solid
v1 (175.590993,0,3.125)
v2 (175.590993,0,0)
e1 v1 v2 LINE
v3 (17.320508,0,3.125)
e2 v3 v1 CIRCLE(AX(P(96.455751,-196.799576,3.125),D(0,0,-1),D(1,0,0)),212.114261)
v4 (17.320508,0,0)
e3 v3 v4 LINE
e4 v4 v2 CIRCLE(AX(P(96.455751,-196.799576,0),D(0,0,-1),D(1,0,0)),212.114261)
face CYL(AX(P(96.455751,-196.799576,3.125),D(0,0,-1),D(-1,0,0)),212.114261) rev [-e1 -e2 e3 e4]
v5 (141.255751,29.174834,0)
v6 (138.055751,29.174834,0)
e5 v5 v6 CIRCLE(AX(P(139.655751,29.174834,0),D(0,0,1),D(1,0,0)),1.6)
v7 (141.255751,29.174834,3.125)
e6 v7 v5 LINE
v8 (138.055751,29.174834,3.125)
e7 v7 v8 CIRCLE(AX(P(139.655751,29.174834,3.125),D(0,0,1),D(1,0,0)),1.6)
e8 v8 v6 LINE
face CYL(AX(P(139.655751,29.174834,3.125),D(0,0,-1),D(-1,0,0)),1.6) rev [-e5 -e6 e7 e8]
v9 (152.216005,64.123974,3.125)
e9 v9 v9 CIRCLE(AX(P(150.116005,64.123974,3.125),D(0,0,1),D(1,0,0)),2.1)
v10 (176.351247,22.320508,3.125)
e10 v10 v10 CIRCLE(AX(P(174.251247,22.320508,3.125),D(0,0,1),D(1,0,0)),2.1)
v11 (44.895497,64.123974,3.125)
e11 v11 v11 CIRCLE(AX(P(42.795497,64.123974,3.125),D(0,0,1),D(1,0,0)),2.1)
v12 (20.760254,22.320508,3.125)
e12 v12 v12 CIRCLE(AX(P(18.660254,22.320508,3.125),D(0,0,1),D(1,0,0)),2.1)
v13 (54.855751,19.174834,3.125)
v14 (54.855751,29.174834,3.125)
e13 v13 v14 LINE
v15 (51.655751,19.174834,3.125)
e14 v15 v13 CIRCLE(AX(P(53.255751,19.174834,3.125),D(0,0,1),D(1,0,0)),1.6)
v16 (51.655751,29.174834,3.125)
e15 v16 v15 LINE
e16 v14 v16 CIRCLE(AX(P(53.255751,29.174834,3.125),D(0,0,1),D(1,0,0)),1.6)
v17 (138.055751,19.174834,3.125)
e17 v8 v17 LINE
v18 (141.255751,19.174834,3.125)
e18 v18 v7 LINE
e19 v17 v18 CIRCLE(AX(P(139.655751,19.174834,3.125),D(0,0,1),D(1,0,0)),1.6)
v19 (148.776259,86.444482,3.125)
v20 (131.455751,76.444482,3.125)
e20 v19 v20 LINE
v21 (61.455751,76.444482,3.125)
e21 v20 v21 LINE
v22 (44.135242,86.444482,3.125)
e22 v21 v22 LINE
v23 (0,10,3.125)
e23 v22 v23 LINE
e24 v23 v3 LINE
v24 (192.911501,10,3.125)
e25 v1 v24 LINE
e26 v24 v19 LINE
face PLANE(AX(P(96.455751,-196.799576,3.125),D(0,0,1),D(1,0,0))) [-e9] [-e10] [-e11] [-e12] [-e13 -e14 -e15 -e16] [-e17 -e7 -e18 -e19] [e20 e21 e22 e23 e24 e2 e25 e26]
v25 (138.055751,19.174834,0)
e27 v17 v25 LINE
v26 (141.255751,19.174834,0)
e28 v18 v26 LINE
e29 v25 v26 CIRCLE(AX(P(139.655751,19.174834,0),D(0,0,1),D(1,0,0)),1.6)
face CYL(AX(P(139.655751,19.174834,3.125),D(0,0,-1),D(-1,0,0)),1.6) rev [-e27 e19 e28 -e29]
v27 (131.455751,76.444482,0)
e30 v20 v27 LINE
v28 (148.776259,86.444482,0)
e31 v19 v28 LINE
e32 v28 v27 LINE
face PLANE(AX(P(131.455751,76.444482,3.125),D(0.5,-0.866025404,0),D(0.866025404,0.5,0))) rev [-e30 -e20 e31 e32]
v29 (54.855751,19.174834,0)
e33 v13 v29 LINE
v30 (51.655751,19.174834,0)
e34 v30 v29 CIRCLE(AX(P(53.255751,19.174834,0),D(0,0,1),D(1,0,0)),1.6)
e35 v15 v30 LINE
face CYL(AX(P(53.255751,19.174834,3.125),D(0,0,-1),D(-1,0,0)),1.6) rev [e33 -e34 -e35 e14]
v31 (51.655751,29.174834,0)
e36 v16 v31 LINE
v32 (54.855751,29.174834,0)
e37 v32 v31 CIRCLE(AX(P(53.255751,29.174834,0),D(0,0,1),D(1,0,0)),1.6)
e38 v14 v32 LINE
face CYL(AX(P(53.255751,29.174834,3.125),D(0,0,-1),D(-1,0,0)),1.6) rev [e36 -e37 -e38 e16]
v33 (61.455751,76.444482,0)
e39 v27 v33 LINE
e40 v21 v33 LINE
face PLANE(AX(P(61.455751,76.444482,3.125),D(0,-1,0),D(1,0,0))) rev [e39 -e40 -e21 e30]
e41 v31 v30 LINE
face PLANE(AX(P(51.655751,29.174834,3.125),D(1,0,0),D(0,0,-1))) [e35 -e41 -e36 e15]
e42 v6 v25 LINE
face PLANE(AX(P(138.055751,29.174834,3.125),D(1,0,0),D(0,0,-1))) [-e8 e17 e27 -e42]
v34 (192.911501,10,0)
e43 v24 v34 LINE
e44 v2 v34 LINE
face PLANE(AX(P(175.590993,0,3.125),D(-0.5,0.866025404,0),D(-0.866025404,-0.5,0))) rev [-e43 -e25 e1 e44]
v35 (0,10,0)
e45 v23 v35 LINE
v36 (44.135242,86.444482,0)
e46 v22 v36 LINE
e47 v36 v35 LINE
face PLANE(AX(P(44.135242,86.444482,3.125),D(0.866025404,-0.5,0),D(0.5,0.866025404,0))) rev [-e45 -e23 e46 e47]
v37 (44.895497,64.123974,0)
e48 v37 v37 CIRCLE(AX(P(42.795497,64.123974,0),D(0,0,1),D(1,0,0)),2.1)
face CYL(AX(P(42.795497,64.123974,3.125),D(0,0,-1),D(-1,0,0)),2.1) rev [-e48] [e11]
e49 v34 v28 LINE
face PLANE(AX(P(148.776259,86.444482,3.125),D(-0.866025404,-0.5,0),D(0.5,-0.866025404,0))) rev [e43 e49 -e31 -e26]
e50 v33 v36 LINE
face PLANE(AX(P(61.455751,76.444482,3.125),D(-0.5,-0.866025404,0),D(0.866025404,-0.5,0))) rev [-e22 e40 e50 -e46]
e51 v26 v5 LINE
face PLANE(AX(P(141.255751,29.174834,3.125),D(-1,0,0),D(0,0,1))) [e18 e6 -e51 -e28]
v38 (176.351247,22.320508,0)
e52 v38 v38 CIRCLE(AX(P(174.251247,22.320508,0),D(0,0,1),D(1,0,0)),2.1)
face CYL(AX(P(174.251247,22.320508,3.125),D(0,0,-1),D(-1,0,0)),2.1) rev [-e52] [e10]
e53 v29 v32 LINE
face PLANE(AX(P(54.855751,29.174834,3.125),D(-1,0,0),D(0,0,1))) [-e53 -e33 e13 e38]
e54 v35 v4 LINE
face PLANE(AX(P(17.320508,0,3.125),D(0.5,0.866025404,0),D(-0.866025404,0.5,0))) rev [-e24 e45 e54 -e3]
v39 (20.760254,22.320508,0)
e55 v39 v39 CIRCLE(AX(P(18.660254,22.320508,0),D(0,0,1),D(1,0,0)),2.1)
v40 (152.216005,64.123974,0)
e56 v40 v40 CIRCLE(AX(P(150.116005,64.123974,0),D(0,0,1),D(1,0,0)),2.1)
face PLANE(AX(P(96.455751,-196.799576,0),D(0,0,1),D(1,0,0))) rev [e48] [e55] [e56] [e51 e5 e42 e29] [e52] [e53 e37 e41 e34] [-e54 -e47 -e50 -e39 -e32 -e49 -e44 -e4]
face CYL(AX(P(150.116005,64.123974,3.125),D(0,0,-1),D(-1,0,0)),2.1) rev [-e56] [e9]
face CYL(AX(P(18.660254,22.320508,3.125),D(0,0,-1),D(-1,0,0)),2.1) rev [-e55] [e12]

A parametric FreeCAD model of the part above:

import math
import FreeCAD as App
import Part
import Sketcher
from FreeCAD import Vector
Q = App.Units.Quantity

doc = App.newDocument("Part")
body = doc.addObject("PartDesign::Body", "Body")

# Sketch on XY plane
sketch1 = body.newObject("Sketcher::SketchObject", "Sketch")
sketch1.AttachmentSupport = (doc.getObject("XY_Plane"), [""])
sketch1.MapMode = "FlatFace"
sketch1.addGeometry(Part.LineSegment(Vector(175.6, 0, 0), Vector(192.9, 10, 0)), False)
sketch1.addGeometry(Part.LineSegment(Vector(192.9, 10, 0), Vector(148.8, 86.4, 0)), False)
sketch1.addGeometry(Part.LineSegment(Vector(148.8, 86.4, 0), Vector(131.5, 76.4, 0)), False)
sketch1.addGeometry(Part.LineSegment(Vector(131.5, 76.4, 0), Vector(61.5, 76.4, 0)), False)
sketch1.addGeometry(Part.LineSegment(Vector(61.5, 76.4, 0), Vector(44.1, 86.4, 0)), False)
sketch1.addGeometry(Part.LineSegment(Vector(44.1, 86.4, 0), Vector(0, 10, 0)), False)
sketch1.addGeometry(Part.LineSegment(Vector(0, 10, 0), Vector(17.3, 0, 0)), False)
sketch1.addGeometry(Part.ArcOfCircle(Part.Circle(Vector(96.5, -196.8, 0), Vector(0, 0, 1), 212.1), math.radians(68), math.radians(112)), False)
sketch1.addGeometry(Part.Circle(Vector(18.7, 22.3, 0), Vector(0, 0, 1), 2.1), False)
sketch1.addGeometry(Part.ArcOfCircle(Part.Circle(Vector(53.3, 29.2, 0), Vector(0, 0, 1), 1.6), math.radians(0), math.radians(180)), False)
sketch1.addGeometry(Part.LineSegment(Vector(54.9, 29.2, 0), Vector(54.9, 19.2, 0)), False)
sketch1.addGeometry(Part.ArcOfCircle(Part.Circle(Vector(53.3, 19.2, 0), Vector(0, 0, 1), 1.6), math.radians(180), math.radians(360)), False)
sketch1.addGeometry(Part.LineSegment(Vector(51.7, 19.2, 0), Vector(51.7, 29.2, 0)), False)
sketch1.addGeometry(Part.Circle(Vector(174.3, 22.3, 0), Vector(0, 0, 1), 2.1), False)
sketch1.addGeometry(Part.ArcOfCircle(Part.Circle(Vector(139.7, 29.2, 0), Vector(0, 0, 1), 1.6), math.radians(0), math.radians(180)), False)
sketch1.addGeometry(Part.LineSegment(Vector(141.3, 29.2, 0), Vector(141.3, 19.2, 0)), False)
sketch1.addGeometry(Part.ArcOfCircle(Part.Circle(Vector(139.7, 19.2, 0), Vector(0, 0, 1), 1.6), math.radians(180), math.radians(360)), False)
sketch1.addGeometry(Part.LineSegment(Vector(138.1, 19.2, 0), Vector(138.1, 29.2, 0)), False)
sketch1.addGeometry(Part.Circle(Vector(42.8, 64.1, 0), Vector(0, 0, 1), 2.1), False)
sketch1.addGeometry(Part.Circle(Vector(150.1, 64.1, 0), Vector(0, 0, 1), 2.1), False)
sketch1.addConstraint(Sketcher.Constraint("Coincident", 0, 2, 1, 1))
sketch1.addConstraint(Sketcher.Constraint("Coincident", 1, 2, 2, 1))
sketch1.addConstraint(Sketcher.Constraint("Coincident", 2, 2, 3, 1))
sketch1.addConstraint(Sketcher.Constraint("Coincident", 3, 2, 4, 1))
sketch1.addConstraint(Sketcher.Constraint("Coincident", 4, 2, 5, 1))
sketch1.addConstraint(Sketcher.Constraint("Coincident", 5, 2, 6, 1))
sketch1.addConstraint(Sketcher.Constraint("Coincident", 6, 2, 7, 2))
sketch1.addConstraint(Sketcher.Constraint("Coincident", 7, 1, 0, 1))
sketch1.addConstraint(Sketcher.Constraint("Tangent", 9, 1, 10, 1))
sketch1.addConstraint(Sketcher.Constraint("Tangent", 10, 2, 11, 2))
sketch1.addConstraint(Sketcher.Constraint("Tangent", 11, 1, 12, 1))
sketch1.addConstraint(Sketcher.Constraint("Tangent", 12, 2, 9, 2))
sketch1.addConstraint(Sketcher.Constraint("Tangent", 14, 1, 15, 1))
sketch1.addConstraint(Sketcher.Constraint("Tangent", 15, 2, 16, 2))
sketch1.addConstraint(Sketcher.Constraint("Tangent", 16, 1, 17, 1))
sketch1.addConstraint(Sketcher.Constraint("Tangent", 17, 2, 14, 2))
sketch1.addConstraint(Sketcher.Constraint("Horizontal", 3))
sketch1.addConstraint(Sketcher.Constraint("Vertical", 10))
sketch1.addConstraint(Sketcher.Constraint("Vertical", 12))
sketch1.addConstraint(Sketcher.Constraint("Vertical", 15))
sketch1.addConstraint(Sketcher.Constraint("Vertical", 17))
sketch1.addConstraint(Sketcher.Constraint("Equal", 8, 13))
sketch1.addConstraint(Sketcher.Constraint("Equal", 11, 14))
sketch1.addConstraint(Sketcher.Constraint("Equal", 13, 18))
sketch1.addConstraint(Sketcher.Constraint("Equal", 18, 19))
sketch1.addConstraint(Sketcher.Constraint("PointOnObject", 5, 2, -2))
sketch1.addConstraint(Sketcher.Constraint("PointOnObject", 6, 2, -1))
sketch1.addConstraint(Sketcher.Constraint("PointOnObject", 7, 1, -1))
sketch1.addConstraint(Sketcher.Constraint("Perpendicular", 0, 1))
sketch1.addConstraint(Sketcher.Constraint("Perpendicular", 1, 2))
sketch1.addConstraint(Sketcher.Constraint("Perpendicular", 4, 5))
sketch1.addConstraint(Sketcher.Constraint("Perpendicular", 5, 6))
sketch1.addConstraint(Sketcher.Constraint("Horizontal", 8, 3, 13, 3))
sketch1.addConstraint(Sketcher.Constraint("Horizontal", 9, 3, 14, 3))
sketch1.addConstraint(Sketcher.Constraint("Horizontal", 11, 3, 16, 3))
sketch1.addConstraint(Sketcher.Constraint("Horizontal", 18, 3, 19, 3))
sketch1.addConstraint(Sketcher.Constraint("Horizontal", 1, 2, 4, 2))
sketch1.addConstraint(Sketcher.Constraint("Horizontal", 0, 2, 5, 2))
sketch1.addConstraint(Sketcher.Constraint("Equal", 0, 2))
sketch1.addConstraint(Sketcher.Constraint("Equal", 2, 4))
sketch1.addConstraint(Sketcher.Constraint("Diameter", 8, 4.2))
sketch1.addConstraint(Sketcher.Constraint("Radius", 9, 1.6))
sketch1.addConstraint(Sketcher.Constraint("DistanceX", 3, 2, 3, 1, 70.0))
sketch1.addConstraint(Sketcher.Constraint("DistanceY", 10, 2, 10, 1, 10.0))
sketch1.addConstraint(Sketcher.Constraint("Angle", 0, Q("30 deg")))
sketch1.addConstraint(Sketcher.Constraint("Distance", 0, 20.0))
sketch1.addConstraint(Sketcher.Constraint("DistanceX", 9, 3, 7, 3, 43.2))
sketch1.addConstraint(Sketcher.Constraint("DistanceX", 9, 3, 14, 3, 86.4))
sketch1.addConstraint(Sketcher.Constraint("Radius", 7, 212.114261))
sketch1.addConstraint(Sketcher.Constraint("DistanceX", -1, 1, 0, 2, 192.911501))
sketch1.addConstraint(Sketcher.Constraint("DistanceY", -1, 1, 8, 3, 22.320508))
sketch1.addConstraint(Sketcher.Constraint("DistanceY", 7, 3, 9, 3, 225.97441))
sketch1.addConstraint(Sketcher.Constraint("DistanceY", 9, 3, 18, 3, 34.949141))
sketch1.addConstraint(Sketcher.Constraint("DistanceX", 1, 2, 13, 3, 25.474988))
sketch1.addConstraint(Sketcher.Constraint("DistanceX", 8, 3, 4, 2, 25.474988))
sketch1.addConstraint(Sketcher.Constraint("DistanceX", 6, 2, 18, 3, 25.474988))
sketch1.addConstraint(Sketcher.Constraint("DistanceX", 19, 3, 7, 1, 25.474988))
pad1 = body.newObject("PartDesign::Pad", "Pad")
pad1.Profile = sketch1
pad1.Length = 3.125

doc.recompute()
